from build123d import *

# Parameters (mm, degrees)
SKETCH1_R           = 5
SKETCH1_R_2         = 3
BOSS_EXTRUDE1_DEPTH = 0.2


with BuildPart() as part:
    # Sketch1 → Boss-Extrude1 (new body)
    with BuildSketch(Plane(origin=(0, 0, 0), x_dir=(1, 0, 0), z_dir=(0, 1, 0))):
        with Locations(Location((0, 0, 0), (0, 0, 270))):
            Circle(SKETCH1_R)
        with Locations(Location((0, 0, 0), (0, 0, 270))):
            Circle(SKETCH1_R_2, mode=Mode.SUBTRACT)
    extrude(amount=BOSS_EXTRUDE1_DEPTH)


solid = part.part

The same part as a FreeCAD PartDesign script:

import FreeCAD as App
import Part
import Sketcher

V = App.Vector
Q = App.Units.Quantity

doc = App.newDocument("Part")
body = doc.addObject("PartDesign::Body", "Body")

sketch1 = doc.addObject("Sketcher::SketchObject", "Sketch")
body.addObject(sketch1)
sketch1.AttachmentSupport = (doc.XZ_Plane, [""])
sketch1.MapMode = "FlatFace"
sketch1.addGeometry([
    Part.Circle(V(0, 0, 0), V(0, 0, 1), 5),
    Part.Circle(V(0, 0, 0), V(0, 0, 1), 3),
], False)
sketch1.addConstraint([
    Sketcher.Constraint("Coincident", 0, 3, -1, 1),
    Sketcher.Constraint("Coincident", 1, 3, -1, 1),
    Sketcher.Constraint("Diameter", 0, Q("10 mm")),
    Sketcher.Constraint("Diameter", 1, Q("6 mm")),
])
pad1 = doc.addObject("PartDesign::Pad", "Pad")
body.addObject(pad1)
pad1.Profile = sketch1
pad1.Length = 0.2
pad1.Reversed = True

doc.recompute()
